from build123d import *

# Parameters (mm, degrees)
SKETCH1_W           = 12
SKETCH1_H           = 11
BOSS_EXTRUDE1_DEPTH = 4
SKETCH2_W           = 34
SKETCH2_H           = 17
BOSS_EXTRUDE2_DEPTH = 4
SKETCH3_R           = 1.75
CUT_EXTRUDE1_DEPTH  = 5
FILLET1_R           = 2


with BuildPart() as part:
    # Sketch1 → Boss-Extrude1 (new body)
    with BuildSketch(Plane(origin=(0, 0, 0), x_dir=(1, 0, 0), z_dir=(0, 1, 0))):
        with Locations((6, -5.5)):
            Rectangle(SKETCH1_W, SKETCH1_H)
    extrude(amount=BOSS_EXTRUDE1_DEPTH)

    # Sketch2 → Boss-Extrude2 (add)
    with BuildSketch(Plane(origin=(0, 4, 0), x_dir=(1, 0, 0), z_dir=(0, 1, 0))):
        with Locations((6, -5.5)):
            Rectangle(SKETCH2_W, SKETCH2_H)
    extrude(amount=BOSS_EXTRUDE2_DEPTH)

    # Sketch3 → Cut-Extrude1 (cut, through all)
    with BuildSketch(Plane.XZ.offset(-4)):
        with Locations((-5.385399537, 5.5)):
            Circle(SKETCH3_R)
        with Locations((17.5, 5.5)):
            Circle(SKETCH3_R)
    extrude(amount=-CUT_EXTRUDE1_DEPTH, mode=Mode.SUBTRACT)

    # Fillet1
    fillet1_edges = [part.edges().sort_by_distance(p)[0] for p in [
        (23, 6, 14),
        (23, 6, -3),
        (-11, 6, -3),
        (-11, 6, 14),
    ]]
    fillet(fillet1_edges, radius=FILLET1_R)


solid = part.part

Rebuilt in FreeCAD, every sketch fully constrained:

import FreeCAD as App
import Part
import Sketcher

V = App.Vector


def edges_at(feature, points):
    """Names of the edges that pass closest to the given points."""
    edges = feature.Shape.Edges
    near = lambda p: min(range(len(edges)), key=lambda i: edges[i].distToShape(Part.Vertex(*p))[0])
    return sorted({f"Edge{near(p) + 1}" for p in points})

doc = App.newDocument("Part")
body = doc.addObject("PartDesign::Body", "Body")

sketch1 = body.newObject("Sketcher::SketchObject", "Sketch")
sketch1.AttachmentSupport = (doc.getObject("XZ_Plane"), [""])
sketch1.MapMode = "FlatFace"
sketch1.addGeometry([
    Part.LineSegment(V(0, 0, 0), V(0, 11, 0)),
    Part.LineSegment(V(0, 11, 0), V(12, 11, 0)),
    Part.LineSegment(V(12, 11, 0), V(12, 0, 0)),
    Part.LineSegment(V(12, 0, 0), V(0, 0, 0)),
], False)
sketch1.addConstraint([
    Sketcher.Constraint("Coincident", 0, 2, 1, 1),
    Sketcher.Constraint("Coincident", 1, 2, 2, 1),
    Sketcher.Constraint("Coincident", 2, 2, 3, 1),
    Sketcher.Constraint("Coincident", 3, 2, 0, 1),
    Sketcher.Constraint("Vertical", 0),
    Sketcher.Constraint("Horizontal", 1),
    Sketcher.Constraint("Vertical", 2),
    Sketcher.Constraint("Horizontal", 3),
    Sketcher.Constraint("Coincident", 3, 2, -1, 1),
    Sketcher.Constraint("DistanceX", 1, 1, 1, 2, 12.0),
    Sketcher.Constraint("DistanceY", 0, 1, 0, 2, 11.0),
])
pad1 = body.newObject("PartDesign::Pad", "Pad")
pad1.Profile = sketch1
pad1.Length = 4
pad1.Reversed = True

sketch2 = body.newObject("Sketcher::SketchObject", "Sketch001")
sketch2.AttachmentSupport = (doc.getObject("XZ_Plane"), [""])
sketch2.MapMode = "FlatFace"
sketch2.AttachmentOffset = App.Placement(V(0, 0, -4), App.Rotation())
sketch2.addGeometry([
    Part.LineSegment(V(-11, -3, 0), V(-11, 14, 0)),
    Part.LineSegment(V(-11, 14, 0), V(23, 14, 0)),
    Part.LineSegment(V(23, 14, 0), V(23, -3, 0)),
    Part.LineSegment(V(23, -3, 0), V(-11, -3, 0)),
], False)
sketch2.addConstraint([
    Sketcher.Constraint("Coincident", 0, 2, 1, 1),
    Sketcher.Constraint("Coincident", 1, 2, 2, 1),
    Sketcher.Constraint("Coincident", 2, 2, 3, 1),
    Sketcher.Constraint("Coincident", 3, 2, 0, 1),
    Sketcher.Constraint("Vertical", 0),
    Sketcher.Constraint("Horizontal", 1),
    Sketcher.Constraint("Vertical", 2),
    Sketcher.Constraint("Horizontal", 3),
    Sketcher.Constraint("DistanceX", 1, 1, 1, 2, 34.0),
    Sketcher.Constraint("DistanceY", 0, 1, 0, 2, 17.0),
    Sketcher.Constraint("DistanceX", 0, 2, -1, 1, 11.0),
    Sketcher.Constraint("DistanceY", -1, 1, 0, 2, 14.0),
])
pad2 = body.newObject("PartDesign::Pad", "Pad001")
pad2.Profile = sketch2
pad2.Length = 4
pad2.Reversed = True

sketch3 = body.newObject("Sketcher::SketchObject", "Sketch002")
sketch3.AttachmentSupport = (doc.getObject("XZ_Plane"), [""])
sketch3.MapMode = "FlatFace"
sketch3.AttachmentOffset = App.Placement(V(0, 0, -4), App.Rotation())
sketch3.addGeometry([
    Part.Circle(V(-5.4, 5.5, 0), V(0, 0, 1), 1.8),
    Part.Circle(V(17.5, 5.5, 0), V(0, 0, 1), 1.8),
], False)
sketch3.addConstraint([
    Sketcher.Constraint("Equal", 0, 1),
    Sketcher.Constraint("Horizontal", 0, 3, 1, 3),
    Sketcher.Constraint("Diameter", 0, 3.5),
    Sketcher.Constraint("DistanceY", -1, 1, 0, 3, 5.5),
    Sketcher.Constraint("DistanceX", -1, 1, 1, 3, 17.5),
    Sketcher.Constraint("DistanceX", 0, 3, -1, 1, 5.3854),
])
pocket1 = body.newObject("PartDesign::Pocket", "Pocket")
pocket1.Profile = sketch3
pocket1.Type = "ThroughAll"
doc.recompute()

fillet = body.newObject("PartDesign::Fillet", "Fillet")
fillet.Base = (pocket1, edges_at(pocket1, [
    (23, 6, 14),
    (23, 6, -3),
    (-11, 6, -3),
    (-11, 6, 14),
]))
fillet.Radius = 2

doc.recompute()
